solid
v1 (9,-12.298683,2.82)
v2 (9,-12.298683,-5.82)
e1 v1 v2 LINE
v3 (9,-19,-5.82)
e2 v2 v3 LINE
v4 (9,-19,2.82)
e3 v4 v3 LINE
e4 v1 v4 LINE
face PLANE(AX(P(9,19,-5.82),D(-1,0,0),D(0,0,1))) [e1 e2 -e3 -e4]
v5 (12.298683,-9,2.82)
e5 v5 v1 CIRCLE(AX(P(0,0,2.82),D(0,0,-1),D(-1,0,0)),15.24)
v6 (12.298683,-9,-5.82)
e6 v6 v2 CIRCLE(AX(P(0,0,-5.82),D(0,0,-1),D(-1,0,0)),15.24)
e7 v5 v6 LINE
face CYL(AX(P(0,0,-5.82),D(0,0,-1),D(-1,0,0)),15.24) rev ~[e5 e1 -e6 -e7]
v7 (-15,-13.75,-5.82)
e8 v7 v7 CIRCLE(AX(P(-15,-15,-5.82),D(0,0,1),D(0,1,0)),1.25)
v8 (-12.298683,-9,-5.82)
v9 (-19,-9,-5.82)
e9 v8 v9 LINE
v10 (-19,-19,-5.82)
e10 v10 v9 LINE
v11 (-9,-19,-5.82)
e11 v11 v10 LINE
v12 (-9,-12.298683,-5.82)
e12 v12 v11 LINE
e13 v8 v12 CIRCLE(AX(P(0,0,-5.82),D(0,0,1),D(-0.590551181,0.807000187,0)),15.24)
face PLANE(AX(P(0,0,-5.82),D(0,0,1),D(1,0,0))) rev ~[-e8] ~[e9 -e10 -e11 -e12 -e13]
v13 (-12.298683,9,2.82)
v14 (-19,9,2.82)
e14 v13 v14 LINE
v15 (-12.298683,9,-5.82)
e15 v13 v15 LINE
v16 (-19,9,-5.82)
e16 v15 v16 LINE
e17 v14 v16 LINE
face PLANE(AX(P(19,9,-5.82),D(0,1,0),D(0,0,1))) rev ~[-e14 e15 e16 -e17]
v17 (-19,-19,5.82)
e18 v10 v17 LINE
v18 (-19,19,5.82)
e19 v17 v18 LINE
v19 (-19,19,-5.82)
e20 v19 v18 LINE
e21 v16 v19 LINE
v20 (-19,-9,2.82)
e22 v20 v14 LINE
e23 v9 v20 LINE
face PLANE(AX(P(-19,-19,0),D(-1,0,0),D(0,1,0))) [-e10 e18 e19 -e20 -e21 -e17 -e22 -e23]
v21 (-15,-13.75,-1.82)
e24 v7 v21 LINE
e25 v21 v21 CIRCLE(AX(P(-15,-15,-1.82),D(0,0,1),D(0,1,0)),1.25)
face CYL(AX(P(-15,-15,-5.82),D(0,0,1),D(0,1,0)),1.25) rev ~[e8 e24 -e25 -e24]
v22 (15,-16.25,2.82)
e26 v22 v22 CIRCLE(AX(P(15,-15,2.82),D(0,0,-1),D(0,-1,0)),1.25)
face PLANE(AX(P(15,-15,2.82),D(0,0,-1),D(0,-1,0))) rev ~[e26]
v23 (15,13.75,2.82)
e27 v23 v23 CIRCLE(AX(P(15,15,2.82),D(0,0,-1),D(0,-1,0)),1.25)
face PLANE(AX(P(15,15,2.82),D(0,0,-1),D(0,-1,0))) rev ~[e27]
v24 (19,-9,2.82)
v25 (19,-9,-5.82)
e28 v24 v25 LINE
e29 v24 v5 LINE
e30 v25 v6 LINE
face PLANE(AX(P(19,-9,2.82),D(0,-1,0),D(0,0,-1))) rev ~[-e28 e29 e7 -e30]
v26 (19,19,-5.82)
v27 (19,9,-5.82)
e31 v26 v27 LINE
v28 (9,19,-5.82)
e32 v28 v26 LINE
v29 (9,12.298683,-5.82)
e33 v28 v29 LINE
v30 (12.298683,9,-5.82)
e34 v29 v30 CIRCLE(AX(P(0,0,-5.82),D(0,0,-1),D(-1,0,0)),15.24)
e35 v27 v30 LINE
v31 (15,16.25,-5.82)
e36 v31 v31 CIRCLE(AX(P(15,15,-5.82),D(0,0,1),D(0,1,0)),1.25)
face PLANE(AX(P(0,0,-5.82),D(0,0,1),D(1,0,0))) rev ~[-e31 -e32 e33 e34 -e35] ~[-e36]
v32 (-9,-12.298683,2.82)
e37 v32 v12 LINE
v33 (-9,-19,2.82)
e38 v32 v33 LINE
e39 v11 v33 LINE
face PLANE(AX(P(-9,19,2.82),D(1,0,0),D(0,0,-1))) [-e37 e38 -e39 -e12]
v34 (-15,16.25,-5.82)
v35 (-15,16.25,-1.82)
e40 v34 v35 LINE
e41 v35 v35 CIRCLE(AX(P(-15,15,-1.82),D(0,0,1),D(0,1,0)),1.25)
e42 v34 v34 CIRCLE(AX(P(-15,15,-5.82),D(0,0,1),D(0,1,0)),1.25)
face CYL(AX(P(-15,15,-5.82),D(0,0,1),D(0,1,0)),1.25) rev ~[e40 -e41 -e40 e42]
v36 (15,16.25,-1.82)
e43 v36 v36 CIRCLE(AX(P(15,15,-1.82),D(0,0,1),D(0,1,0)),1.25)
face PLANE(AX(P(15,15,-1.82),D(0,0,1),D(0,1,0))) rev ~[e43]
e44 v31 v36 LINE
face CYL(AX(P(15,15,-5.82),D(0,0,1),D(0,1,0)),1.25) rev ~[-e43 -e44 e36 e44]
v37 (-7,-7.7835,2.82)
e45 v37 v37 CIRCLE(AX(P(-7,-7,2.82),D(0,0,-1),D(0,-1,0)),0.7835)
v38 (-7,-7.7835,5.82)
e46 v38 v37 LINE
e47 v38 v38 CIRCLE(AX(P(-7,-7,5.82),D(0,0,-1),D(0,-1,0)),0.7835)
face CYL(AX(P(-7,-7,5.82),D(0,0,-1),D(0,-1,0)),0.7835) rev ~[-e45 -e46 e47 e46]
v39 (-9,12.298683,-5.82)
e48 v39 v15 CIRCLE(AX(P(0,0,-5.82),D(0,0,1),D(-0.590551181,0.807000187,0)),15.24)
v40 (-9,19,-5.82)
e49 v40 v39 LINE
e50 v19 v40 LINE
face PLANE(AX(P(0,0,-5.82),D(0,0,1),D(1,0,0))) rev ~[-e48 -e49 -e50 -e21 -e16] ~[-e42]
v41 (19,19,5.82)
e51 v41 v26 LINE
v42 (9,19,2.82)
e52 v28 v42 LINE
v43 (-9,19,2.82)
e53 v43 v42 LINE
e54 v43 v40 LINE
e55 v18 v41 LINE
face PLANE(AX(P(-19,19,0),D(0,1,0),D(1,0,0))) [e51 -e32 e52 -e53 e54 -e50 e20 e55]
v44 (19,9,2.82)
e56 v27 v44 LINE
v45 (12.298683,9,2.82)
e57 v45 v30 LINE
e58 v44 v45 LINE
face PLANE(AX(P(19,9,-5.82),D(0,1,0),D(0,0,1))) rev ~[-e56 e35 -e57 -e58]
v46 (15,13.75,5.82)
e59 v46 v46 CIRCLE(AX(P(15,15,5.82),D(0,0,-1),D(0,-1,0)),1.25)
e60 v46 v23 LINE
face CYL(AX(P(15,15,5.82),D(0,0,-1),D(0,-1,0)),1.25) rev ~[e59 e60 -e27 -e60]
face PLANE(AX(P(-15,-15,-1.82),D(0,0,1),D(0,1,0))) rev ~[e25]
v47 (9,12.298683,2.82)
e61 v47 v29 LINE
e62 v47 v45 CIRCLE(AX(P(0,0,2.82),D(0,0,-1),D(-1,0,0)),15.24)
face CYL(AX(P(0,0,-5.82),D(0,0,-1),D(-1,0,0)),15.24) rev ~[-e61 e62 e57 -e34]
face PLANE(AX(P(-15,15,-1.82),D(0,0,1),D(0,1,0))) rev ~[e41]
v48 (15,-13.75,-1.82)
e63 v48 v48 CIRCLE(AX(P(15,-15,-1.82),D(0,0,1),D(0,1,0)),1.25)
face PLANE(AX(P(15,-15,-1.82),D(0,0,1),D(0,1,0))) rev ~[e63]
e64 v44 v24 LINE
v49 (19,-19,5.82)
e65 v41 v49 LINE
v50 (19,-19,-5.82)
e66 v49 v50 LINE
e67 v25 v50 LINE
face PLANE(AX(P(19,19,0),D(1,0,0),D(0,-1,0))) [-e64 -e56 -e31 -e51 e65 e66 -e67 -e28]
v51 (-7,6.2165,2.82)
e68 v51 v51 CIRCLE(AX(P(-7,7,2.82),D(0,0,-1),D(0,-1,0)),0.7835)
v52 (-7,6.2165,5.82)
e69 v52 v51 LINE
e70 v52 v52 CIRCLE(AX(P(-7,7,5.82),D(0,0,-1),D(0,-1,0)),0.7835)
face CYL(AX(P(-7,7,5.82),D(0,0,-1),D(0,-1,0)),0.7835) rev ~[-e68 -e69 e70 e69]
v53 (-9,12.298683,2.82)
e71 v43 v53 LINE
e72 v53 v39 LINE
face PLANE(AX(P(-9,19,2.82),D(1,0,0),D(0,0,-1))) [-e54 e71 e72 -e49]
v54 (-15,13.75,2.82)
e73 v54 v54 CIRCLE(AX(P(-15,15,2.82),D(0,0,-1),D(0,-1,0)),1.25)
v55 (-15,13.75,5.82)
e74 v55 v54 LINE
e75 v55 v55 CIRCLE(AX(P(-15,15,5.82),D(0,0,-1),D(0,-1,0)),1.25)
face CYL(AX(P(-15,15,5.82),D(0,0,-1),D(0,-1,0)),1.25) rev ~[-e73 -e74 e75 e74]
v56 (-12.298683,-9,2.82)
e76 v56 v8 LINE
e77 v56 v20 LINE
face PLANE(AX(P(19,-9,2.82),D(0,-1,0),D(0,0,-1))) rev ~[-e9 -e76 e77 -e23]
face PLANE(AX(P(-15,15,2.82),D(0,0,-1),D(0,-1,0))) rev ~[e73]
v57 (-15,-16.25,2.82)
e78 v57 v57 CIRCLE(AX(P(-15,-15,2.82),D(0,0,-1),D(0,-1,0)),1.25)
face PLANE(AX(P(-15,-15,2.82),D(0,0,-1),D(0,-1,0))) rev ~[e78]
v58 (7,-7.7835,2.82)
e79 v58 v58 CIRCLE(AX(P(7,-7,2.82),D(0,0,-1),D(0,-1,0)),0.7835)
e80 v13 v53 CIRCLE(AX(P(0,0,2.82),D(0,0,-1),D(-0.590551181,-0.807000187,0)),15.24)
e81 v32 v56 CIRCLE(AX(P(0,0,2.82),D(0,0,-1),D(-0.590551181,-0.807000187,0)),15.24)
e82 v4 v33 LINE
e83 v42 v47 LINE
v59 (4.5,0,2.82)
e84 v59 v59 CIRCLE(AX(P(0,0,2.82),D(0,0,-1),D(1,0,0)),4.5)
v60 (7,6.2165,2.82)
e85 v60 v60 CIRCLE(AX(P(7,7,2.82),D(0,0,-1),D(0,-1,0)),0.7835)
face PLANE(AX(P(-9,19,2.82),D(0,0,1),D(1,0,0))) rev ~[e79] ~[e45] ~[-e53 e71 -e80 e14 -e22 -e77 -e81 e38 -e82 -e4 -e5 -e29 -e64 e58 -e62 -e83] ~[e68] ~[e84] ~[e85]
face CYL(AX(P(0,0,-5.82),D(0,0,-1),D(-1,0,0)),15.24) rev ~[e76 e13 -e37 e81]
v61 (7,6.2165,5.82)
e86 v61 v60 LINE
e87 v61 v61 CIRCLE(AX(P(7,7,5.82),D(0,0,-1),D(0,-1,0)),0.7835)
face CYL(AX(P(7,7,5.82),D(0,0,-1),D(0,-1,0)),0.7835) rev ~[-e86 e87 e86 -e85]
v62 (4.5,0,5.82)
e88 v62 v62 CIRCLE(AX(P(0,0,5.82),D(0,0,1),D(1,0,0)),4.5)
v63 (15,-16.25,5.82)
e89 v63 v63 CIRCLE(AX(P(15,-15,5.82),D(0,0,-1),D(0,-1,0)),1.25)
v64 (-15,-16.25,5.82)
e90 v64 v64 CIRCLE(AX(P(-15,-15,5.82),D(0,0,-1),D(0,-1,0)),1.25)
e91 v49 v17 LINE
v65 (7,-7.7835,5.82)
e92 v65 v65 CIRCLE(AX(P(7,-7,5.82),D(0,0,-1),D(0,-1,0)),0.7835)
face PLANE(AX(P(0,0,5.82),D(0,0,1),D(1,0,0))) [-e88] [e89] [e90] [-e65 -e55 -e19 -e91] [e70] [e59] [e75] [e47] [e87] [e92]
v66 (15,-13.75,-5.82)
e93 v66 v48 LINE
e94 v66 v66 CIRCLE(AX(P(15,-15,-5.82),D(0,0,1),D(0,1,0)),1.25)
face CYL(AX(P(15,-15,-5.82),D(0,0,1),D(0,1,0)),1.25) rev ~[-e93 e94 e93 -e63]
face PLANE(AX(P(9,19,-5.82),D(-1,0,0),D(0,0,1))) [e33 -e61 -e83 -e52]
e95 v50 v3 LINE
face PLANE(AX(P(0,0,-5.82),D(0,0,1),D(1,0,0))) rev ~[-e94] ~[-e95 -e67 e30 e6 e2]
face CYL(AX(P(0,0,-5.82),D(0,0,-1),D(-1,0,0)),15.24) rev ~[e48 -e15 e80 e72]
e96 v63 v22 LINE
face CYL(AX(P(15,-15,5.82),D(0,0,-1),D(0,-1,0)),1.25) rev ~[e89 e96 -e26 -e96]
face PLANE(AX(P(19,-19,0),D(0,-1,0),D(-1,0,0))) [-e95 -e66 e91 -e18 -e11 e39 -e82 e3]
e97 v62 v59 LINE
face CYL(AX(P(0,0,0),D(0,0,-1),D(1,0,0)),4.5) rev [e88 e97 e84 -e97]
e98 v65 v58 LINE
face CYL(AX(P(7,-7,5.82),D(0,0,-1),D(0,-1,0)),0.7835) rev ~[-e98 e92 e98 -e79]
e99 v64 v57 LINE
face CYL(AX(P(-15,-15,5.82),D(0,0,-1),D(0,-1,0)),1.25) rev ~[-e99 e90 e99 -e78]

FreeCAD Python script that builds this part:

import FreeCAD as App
import Part
import Sketcher
from FreeCAD import Vector

doc = App.newDocument("Part")
body = doc.addObject("PartDesign::Body", "Body")

# Sketch on XY plane
sketch1 = body.newObject("Sketcher::SketchObject", "Sketch")
sketch1.AttachmentSupport = (doc.getObject("XY_Plane"), [""])
sketch1.MapMode = "FlatFace"
sketch1.addGeometry(Part.LineSegment(Vector(19, 19, 0), Vector(-19, 19, 0)), False)
sketch1.addGeometry(Part.LineSegment(Vector(-19, 19, 0), Vector(-19, -19, 0)), False)
sketch1.addGeometry(Part.LineSegment(Vector(-19, -19, 0), Vector(19, -19, 0)), False)
sketch1.addGeometry(Part.LineSegment(Vector(19, -19, 0), Vector(19, 19, 0)), False)
sketch1.addGeometry(Part.Circle(Vector(0, 0, 0), Vector(0, 0, 1), 4.5), False)
sketch1.addConstraint(Sketcher.Constraint("Coincident", 0, 2, 1, 1))
sketch1.addConstraint(Sketcher.Constraint("Coincident", 1, 2, 2, 1))
sketch1.addConstraint(Sketcher.Constraint("Coincident", 2, 2, 3, 1))
sketch1.addConstraint(Sketcher.Constraint("Coincident", 3, 2, 0, 1))
sketch1.addConstraint(Sketcher.Constraint("Horizontal", 0))
sketch1.addConstraint(Sketcher.Constraint("Vertical", 1))
sketch1.addConstraint(Sketcher.Constraint("Horizontal", 2))
sketch1.addConstraint(Sketcher.Constraint("Vertical", 3))
sketch1.addConstraint(Sketcher.Constraint("Coincident", 4, 3, -1, 1))
sketch1.addConstraint(Sketcher.Constraint("Symmetric", 0, 2, 2, 2, -1, 1))
sketch1.addConstraint(Sketcher.Constraint("Equal", 2, 1))
sketch1.addConstraint(Sketcher.Constraint("Diameter", 4, 9.0))
sketch1.addConstraint(Sketcher.Constraint("DistanceX", 0, 2, 0, 1, 38.0))
pad1 = body.newObject("PartDesign::Pad", "Pad")
pad1.Profile = sketch1
pad1.Length = 11.64
pad1.Midplane = True

# Sketch on XY plane
sketch2 = body.newObject("Sketcher::SketchObject", "Sketch001")
sketch2.AttachmentSupport = (doc.getObject("XY_Plane"), [""])
sketch2.MapMode = "FlatFace"
sketch2.AttachmentOffset = App.Placement(Vector(0, 0, -5.82), App.Rotation())
sketch2.addGeometry(Part.Circle(Vector(0, 0, 0), Vector(0, 0, 1), 15), False)
sketch2.addConstraint(Sketcher.Constraint("Coincident", 0, 3, -1, 1))
sketch2.addConstraint(Sketcher.Constraint("Diameter", 0, 30.48))
pocket1 = body.newObject("PartDesign::Pocket", "Pocket")
pocket1.Profile = sketch2
pocket1.Length = 8.64
pocket1.Reversed = True

# Sketch on XZ plane
sketch3 = body.newObject("Sketcher::SketchObject", "Sketch002")
sketch3.AttachmentSupport = (doc.getObject("XZ_Plane"), [""])
sketch3.MapMode = "FlatFace"
sketch3.AttachmentOffset = App.Placement(Vector(0, 0, -19), App.Rotation())
sketch3.addGeometry(Part.LineSegment(Vector(9, -6, 0), Vector(-9, -6, 0)), False)
sketch3.addGeometry(Part.LineSegment(Vector(-9, -6, 0), Vector(-9, 3, 0)), False)
sketch3.addGeometry(Part.LineSegment(Vector(-9, 3, 0), Vector(9, 3, 0)), False)
sketch3.addGeometry(Part.LineSegment(Vector(9, 3, 0), Vector(9, -6, 0)), False)
sketch3.addConstraint(Sketcher.Constraint("Coincident", 0, 2, 1, 1))
sketch3.addConstraint(Sketcher.Constraint("Coincident", 1, 2, 2, 1))
sketch3.addConstraint(Sketcher.Constraint("Coincident", 2, 2, 3, 1))
sketch3.addConstraint(Sketcher.Constraint("Coincident", 3, 2, 0, 1))
sketch3.addConstraint(Sketcher.Constraint("Horizontal", 0))
sketch3.addConstraint(Sketcher.Constraint("Vertical", 1))
sketch3.addConstraint(Sketcher.Constraint("Horizontal", 2))
sketch3.addConstraint(Sketcher.Constraint("Vertical", 3))
sketch3.addConstraint(Sketcher.Constraint("DistanceX", 0, 2, 0, 1, 18.0))
sketch3.addConstraint(Sketcher.Constraint("DistanceX", 0, 2, -1, 1, 9.0))
sketch3.addConstraint(Sketcher.Constraint("DistanceY", 1, 1, 1, 2, 8.64))
sketch3.addConstraint(Sketcher.Constraint("DistanceY", 0, 2, -1, 1, 5.82))
pocket2 = body.newObject("PartDesign::Pocket", "Pocket001")
pocket2.Profile = sketch3
pocket2.Type = "ThroughAll"
pocket2.Reversed = True

# Sketch on YZ plane
sketch4 = body.newObject("Sketcher::SketchObject", "Sketch003")
sketch4.AttachmentSupport = (doc.getObject("YZ_Plane"), [""])
sketch4.MapMode = "FlatFace"
sketch4.AttachmentOffset = App.Placement(Vector(0, 0, 19), App.Rotation())
sketch4.addGeometry(Part.LineSegment(Vector(-9, -6, 0), Vector(9, -6, 0)), False)
sketch4.addGeometry(Part.LineSegment(Vector(9, -6, 0), Vector(9, 3, 0)), False)
sketch4.addGeometry(Part.LineSegment(Vector(9, 3, 0), Vector(-9, 3, 0)), False)
sketch4.addGeometry(Part.LineSegment(Vector(-9, 3, 0), Vector(-9, -6, 0)), False)
sketch4.addConstraint(Sketcher.Constraint("Coincident", 0, 2, 1, 1))
sketch4.addConstraint(Sketcher.Constraint("Coincident", 1, 2, 2, 1))
sketch4.addConstraint(Sketcher.Constraint("Coincident", 2, 2, 3, 1))
sketch4.addConstraint(Sketcher.Constraint("Coincident", 3, 2, 0, 1))
sketch4.addConstraint(Sketcher.Constraint("Horizontal", 0))
sketch4.addConstraint(Sketcher.Constraint("Vertical", 1))
sketch4.addConstraint(Sketcher.Constraint("Horizontal", 2))
sketch4.addConstraint(Sketcher.Constraint("Vertical", 3))
sketch4.addConstraint(Sketcher.Constraint("DistanceX", 0, 1, 0, 2, 18.0))
sketch4.addConstraint(Sketcher.Constraint("DistanceX", -1, 1, 0, 2, 9.0))
sketch4.addConstraint(Sketcher.Constraint("DistanceY", 1, 1, 1, 2, 8.64))
sketch4.addConstraint(Sketcher.Constraint("DistanceY", 0, 2, -1, 1, 5.82))
pocket3 = body.newObject("PartDesign::Pocket", "Pocket002")
pocket3.Profile = sketch4
pocket3.Type = "ThroughAll"

# Sketch on XY plane
sketch5 = body.newObject("Sketcher::SketchObject", "Sketch004")
sketch5.AttachmentSupport = (doc.getObject("XY_Plane"), [""])
sketch5.MapMode = "FlatFace"
sketch5.AttachmentOffset = App.Placement(Vector(0, 0, -5.82), App.Rotation())
sketch5.addGeometry(Part.Circle(Vector(15, -15, 0), Vector(0, 0, 1), 1.2), False)
sketch5.addGeometry(Part.Circle(Vector(15, 15, 0), Vector(0, 0, 1), 1.2), False)
sketch5.addGeometry(Part.Circle(Vector(-15, 15, 0), Vector(0, 0, 1), 1.2), False)
sketch5.addGeometry(Part.Circle(Vector(-15, -15, 0), Vector(0, 0, 1), 1.2), False)
sketch5.addConstraint(Sketcher.Constraint("Equal", 0, 1))
sketch5.addConstraint(Sketcher.Constraint("Equal", 1, 2))
sketch5.addConstraint(Sketcher.Constraint("Equal", 2, 3))
sketch5.addConstraint(Sketcher.Constraint("Symmetric", 0, 3, 2, 3, -1, 1))
sketch5.addConstraint(Sketcher.Constraint("Symmetric", 1, 3, 3, 3, -1, 1))
sketch5.addConstraint(Sketcher.Constraint("Symmetric", 1, 3, 2, 3, -2))
sketch5.addConstraint(Sketcher.Constraint("Diameter", 0, 2.5))
sketch5.addConstraint(Sketcher.Constraint("DistanceX", -1, 1, 0, 3, 15.0))
sketch5.addConstraint(Sketcher.Constraint("DistanceY", 0, 3, -1, 1, 15.0))
doc.recompute()
hole = body.newObject("PartDesign::Hole", "Hole")
hole.Profile = sketch5
hole.ThreadType = "None"
hole.Diameter = 2.5
hole.DepthType = "Dimension"
hole.Depth = 4
hole.DrillPoint = "Flat"
hole.Reversed = True

# Sketch on XY plane
sketch6 = body.newObject("Sketcher::SketchObject", "Sketch005")
sketch6.AttachmentSupport = (doc.getObject("XY_Plane"), [""])
sketch6.MapMode = "FlatFace"
sketch6.AttachmentOffset = App.Placement(Vector(0, 0, 5.82), App.Rotation())
sketch6.addGeometry(Part.Circle(Vector(-7, -7, 0), Vector(0, 0, 1), 0.8), False)
sketch6.addGeometry(Part.Circle(Vector(-7, 7, 0), Vector(0, 0, 1), 0.8), False)
sketch6.addGeometry(Part.Circle(Vector(7, -7, 0), Vector(0, 0, 1), 0.8), False)
sketch6.addGeometry(Part.Circle(Vector(7, 7, 0), Vector(0, 0, 1), 0.8), False)
sketch6.addConstraint(Sketcher.Constraint("Equal", 0, 1))
sketch6.addConstraint(Sketcher.Constraint("Equal", 1, 2))
sketch6.addConstraint(Sketcher.Constraint("Equal", 2, 3))
sketch6.addConstraint(Sketcher.Constraint("Symmetric", 1, 3, 2, 3, -1, 1))
sketch6.addConstraint(Sketcher.Constraint("Symmetric", 0, 3, 3, 3, -1, 1))
sketch6.addConstraint(Sketcher.Constraint("Symmetric", 0, 3, 2, 3, -2))
sketch6.addConstraint(Sketcher.Constraint("Diameter", 0, 1.567))
sketch6.addConstraint(Sketcher.Constraint("DistanceX", 0, 3, -1, 1, 7.0))
sketch6.addConstraint(Sketcher.Constraint("DistanceY", 0, 3, -1, 1, 7.0))
doc.recompute()
hole2 = body.newObject("PartDesign::Hole", "Hole001")
hole2.Profile = sketch6
hole2.ThreadType = "None"
hole2.Diameter = 1.567
hole2.DepthType = "ThroughAll"

# Sketch on XY plane
sketch7 = body.newObject("Sketcher::SketchObject", "Sketch006")
sketch7.AttachmentSupport = (doc.getObject("XY_Plane"), [""])
sketch7.MapMode = "FlatFace"
sketch7.AttachmentOffset = App.Placement(Vector(0, 0, 5.82), App.Rotation())
sketch7.addGeometry(Part.Circle(Vector(15, -15, 0), Vector(0, 0, 1), 1.2), False)
sketch7.addGeometry(Part.Circle(Vector(-15, -15, 0), Vector(0, 0, 1), 1.2), False)
sketch7.addGeometry(Part.Circle(Vector(-15, 15, 0), Vector(0, 0, 1), 1.2), False)
sketch7.addGeometry(Part.Circle(Vector(15, 15, 0), Vector(0, 0, 1), 1.2), False)
sketch7.addConstraint(Sketcher.Constraint("Equal", 0, 1))
sketch7.addConstraint(Sketcher.Constraint("Equal", 1, 2))
sketch7.addConstraint(Sketcher.Constraint("Equal", 2, 3))
sketch7.addConstraint(Sketcher.Constraint("Symmetric", 0, 3, 2, 3, -1, 1))
sketch7.addConstraint(Sketcher.Constraint("Symmetric", 1, 3, 3, 3, -1, 1))
sketch7.addConstraint(Sketcher.Constraint("Symmetric", 0, 3, 1, 3, -2))
sketch7.addConstraint(Sketcher.Constraint("Diameter", 0, 2.5))
sketch7.addConstraint(Sketcher.Constraint("DistanceX", -1, 1, 0, 3, 15.0))
sketch7.addConstraint(Sketcher.Constraint("DistanceY", 0, 3, -1, 1, 15.0))
doc.recompute()
hole3 = body.newObject("PartDesign::Hole", "Hole002")
hole3.Profile = sketch7
hole3.ThreadType = "None"
hole3.Diameter = 2.5
hole3.DepthType = "Dimension"
hole3.Depth = 3
hole3.DrillPoint = "Flat"

doc.recompute()
